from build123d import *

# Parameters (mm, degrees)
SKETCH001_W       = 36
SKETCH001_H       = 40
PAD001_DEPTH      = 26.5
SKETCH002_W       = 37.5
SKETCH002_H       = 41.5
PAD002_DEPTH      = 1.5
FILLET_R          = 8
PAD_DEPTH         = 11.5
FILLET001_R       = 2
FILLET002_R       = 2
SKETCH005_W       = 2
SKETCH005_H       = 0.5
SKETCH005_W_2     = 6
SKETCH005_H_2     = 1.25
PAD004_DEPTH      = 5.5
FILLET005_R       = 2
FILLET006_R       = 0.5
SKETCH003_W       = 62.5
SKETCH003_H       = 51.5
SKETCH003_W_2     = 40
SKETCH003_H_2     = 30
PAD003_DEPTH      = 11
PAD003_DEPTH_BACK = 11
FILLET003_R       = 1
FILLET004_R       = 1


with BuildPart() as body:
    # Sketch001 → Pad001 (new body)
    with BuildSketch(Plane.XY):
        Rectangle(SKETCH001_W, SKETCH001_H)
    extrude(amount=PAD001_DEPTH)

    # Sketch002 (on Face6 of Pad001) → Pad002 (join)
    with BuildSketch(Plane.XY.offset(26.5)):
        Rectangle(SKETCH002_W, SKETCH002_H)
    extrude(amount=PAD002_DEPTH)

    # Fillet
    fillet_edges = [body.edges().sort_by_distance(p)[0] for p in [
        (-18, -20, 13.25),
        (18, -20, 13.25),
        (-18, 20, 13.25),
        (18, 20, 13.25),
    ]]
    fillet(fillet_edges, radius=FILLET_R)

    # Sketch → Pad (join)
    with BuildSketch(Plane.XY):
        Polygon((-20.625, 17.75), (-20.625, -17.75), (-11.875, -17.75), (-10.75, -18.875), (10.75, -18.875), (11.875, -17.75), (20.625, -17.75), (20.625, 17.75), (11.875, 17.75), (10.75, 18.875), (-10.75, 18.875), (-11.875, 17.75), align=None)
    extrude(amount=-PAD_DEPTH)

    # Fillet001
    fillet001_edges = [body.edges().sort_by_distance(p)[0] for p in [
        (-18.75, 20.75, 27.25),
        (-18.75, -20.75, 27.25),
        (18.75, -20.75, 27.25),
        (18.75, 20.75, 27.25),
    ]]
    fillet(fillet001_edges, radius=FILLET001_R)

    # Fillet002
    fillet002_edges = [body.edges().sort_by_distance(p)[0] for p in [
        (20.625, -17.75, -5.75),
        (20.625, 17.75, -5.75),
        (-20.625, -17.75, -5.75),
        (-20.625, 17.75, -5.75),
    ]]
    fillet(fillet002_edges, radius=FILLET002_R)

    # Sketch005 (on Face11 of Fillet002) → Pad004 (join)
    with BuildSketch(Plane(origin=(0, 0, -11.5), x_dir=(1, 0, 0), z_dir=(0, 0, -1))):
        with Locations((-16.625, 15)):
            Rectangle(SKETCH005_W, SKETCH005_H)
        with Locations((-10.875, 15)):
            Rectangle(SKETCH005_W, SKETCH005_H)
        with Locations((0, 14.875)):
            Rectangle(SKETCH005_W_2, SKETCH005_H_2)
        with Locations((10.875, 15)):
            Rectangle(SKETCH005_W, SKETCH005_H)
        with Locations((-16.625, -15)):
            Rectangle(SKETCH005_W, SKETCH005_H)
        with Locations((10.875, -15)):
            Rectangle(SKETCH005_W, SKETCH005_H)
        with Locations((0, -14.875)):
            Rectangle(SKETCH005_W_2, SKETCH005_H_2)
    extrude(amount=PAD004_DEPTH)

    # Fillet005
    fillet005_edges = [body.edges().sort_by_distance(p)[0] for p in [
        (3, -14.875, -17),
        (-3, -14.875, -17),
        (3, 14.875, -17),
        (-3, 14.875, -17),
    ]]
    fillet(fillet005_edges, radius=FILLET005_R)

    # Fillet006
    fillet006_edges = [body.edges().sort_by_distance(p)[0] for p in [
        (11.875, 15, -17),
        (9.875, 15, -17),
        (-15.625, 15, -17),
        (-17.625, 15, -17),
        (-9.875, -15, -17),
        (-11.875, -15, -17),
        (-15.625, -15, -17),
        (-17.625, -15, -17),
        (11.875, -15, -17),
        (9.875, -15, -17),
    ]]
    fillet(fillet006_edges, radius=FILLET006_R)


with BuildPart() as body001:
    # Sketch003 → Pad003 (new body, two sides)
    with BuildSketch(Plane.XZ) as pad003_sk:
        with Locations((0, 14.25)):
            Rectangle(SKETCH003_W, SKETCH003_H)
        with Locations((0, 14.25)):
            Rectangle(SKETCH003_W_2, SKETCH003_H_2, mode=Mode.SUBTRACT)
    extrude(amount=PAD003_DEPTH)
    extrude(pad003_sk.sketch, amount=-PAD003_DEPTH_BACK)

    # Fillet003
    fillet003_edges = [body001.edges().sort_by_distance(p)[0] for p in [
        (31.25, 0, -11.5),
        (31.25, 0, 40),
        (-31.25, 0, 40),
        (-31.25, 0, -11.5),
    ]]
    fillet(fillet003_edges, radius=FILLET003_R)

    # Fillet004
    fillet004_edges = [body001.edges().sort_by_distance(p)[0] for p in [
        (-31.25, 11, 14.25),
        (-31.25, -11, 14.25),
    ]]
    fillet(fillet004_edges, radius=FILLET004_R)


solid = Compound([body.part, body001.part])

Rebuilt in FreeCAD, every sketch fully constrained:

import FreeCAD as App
import Part
import Sketcher
from FreeCAD import Vector
Q = App.Units.Quantity


def edges_at(feature, points):
    """Names of the edges that pass closest to the given points."""
    edges = feature.Shape.Edges
    near = lambda p: min(range(len(edges)), key=lambda i: edges[i].distToShape(Part.Vertex(*p))[0])
    return sorted({f"Edge{near(p) + 1}" for p in points})

doc = App.newDocument("Part")
body = doc.addObject("PartDesign::Body", "Body")

# Sketch on XY plane
sketch1 = body.newObject("Sketcher::SketchObject", "Sketch")
sketch1.AttachmentSupport = (doc.getObject("XY_Plane"), [""])
sketch1.MapMode = "FlatFace"
sketch1.addGeometry([
    Part.LineSegment(Vector(-18, 20, 0), Vector(-18, -20, 0)),
    Part.LineSegment(Vector(-18, -20, 0), Vector(18, -20, 0)),
    Part.LineSegment(Vector(18, -20, 0), Vector(18, 20, 0)),
    Part.LineSegment(Vector(18, 20, 0), Vector(-18, 20, 0)),
], False)
sketch1.addConstraint([
    Sketcher.Constraint("Coincident", 0, 2, 1, 1),
    Sketcher.Constraint("Coincident", 1, 2, 2, 1),
    Sketcher.Constraint("Coincident", 2, 2, 3, 1),
    Sketcher.Constraint("Coincident", 3, 2, 0, 1),
    Sketcher.Constraint("Vertical", 0),
    Sketcher.Constraint("Horizontal", 1),
    Sketcher.Constraint("Vertical", 2),
    Sketcher.Constraint("Horizontal", 3),
    Sketcher.Constraint("Symmetric", 0, 2, 2, 2, -1, 1),
    Sketcher.Constraint("DistanceX", 1, 1, 1, 2, Q("36 mm")),
    Sketcher.Constraint("DistanceY", 0, 2, 0, 1, Q("40 mm")),
])
pad1 = body.newObject("PartDesign::Pad", "Pad")
pad1.Profile = sketch1
pad1.Length = 26.5

# Sketch on XY plane
sketch2 = body.newObject("Sketcher::SketchObject", "Sketch001")
sketch2.AttachmentSupport = (doc.getObject("XY_Plane"), [""])
sketch2.MapMode = "FlatFace"
sketch2.AttachmentOffset = App.Placement(Vector(0, 0, 26.5), App.Rotation())
sketch2.addGeometry([
    Part.LineSegment(Vector(-19, 21, 0), Vector(-19, -21, 0)),
    Part.LineSegment(Vector(-19, -21, 0), Vector(19, -21, 0)),
    Part.LineSegment(Vector(19, -21, 0), Vector(19, 21, 0)),
    Part.LineSegment(Vector(19, 21, 0), Vector(-19, 21, 0)),
], False)
sketch2.addConstraint([
    Sketcher.Constraint("Coincident", 0, 2, 1, 1),
    Sketcher.Constraint("Coincident", 1, 2, 2, 1),
    Sketcher.Constraint("Coincident", 2, 2, 3, 1),
    Sketcher.Constraint("Coincident", 3, 2, 0, 1),
    Sketcher.Constraint("Vertical", 0),
    Sketcher.Constraint("Horizontal", 1),
    Sketcher.Constraint("Vertical", 2),
    Sketcher.Constraint("Horizontal", 3),
    Sketcher.Constraint("Symmetric", 0, 2, 2, 2, -1, 1),
    Sketcher.Constraint("DistanceX", 1, 1, 1, 2, Q("37.5 mm")),
    Sketcher.Constraint("DistanceY", 0, 2, 0, 1, Q("41.5 mm")),
])
pad2 = body.newObject("PartDesign::Pad", "Pad001")
pad2.Profile = sketch2
pad2.Length = 1.5
doc.recompute()

fillet = body.newObject("PartDesign::Fillet", "Fillet")
fillet.Base = (pad2, edges_at(pad2, [
    (-18, -20, 13.25),
    (18, -20, 13.25),
    (-18, 20, 13.25),
    (18, 20, 13.25),
]))
fillet.Radius = 8

# Sketch on XY plane
sketch3 = body.newObject("Sketcher::SketchObject", "Sketch002")
sketch3.AttachmentSupport = (doc.getObject("XY_Plane"), [""])
sketch3.MapMode = "FlatFace"
sketch3.addGeometry([
    Part.LineSegment(Vector(-20.6, 17.8, 0), Vector(-20.6, -17.8, 0)),  # 0
    Part.LineSegment(Vector(-20.6, -17.8, 0), Vector(-11.9, -17.8, 0)),  # 1
    Part.LineSegment(Vector(-11.9, -17.8, 0), Vector(-10.8, -18.9, 0)),  # 2
    Part.LineSegment(Vector(-10.8, -18.9, 0), Vector(10.8, -18.9, 0)),  # 3
    Part.LineSegment(Vector(10.8, -18.9, 0), Vector(11.9, -17.8, 0)),  # 4
    Part.LineSegment(Vector(11.9, -17.8, 0), Vector(20.6, -17.8, 0)),  # 5
    Part.LineSegment(Vector(20.6, -17.8, 0), Vector(20.6, 17.8, 0)),  # 6
    Part.LineSegment(Vector(20.6, 17.8, 0), Vector(11.9, 17.8, 0)),  # 7
    Part.LineSegment(Vector(11.9, 17.8, 0), Vector(10.8, 18.9, 0)),  # 8
    Part.LineSegment(Vector(10.8, 18.9, 0), Vector(-10.8, 18.9, 0)),  # 9
    Part.LineSegment(Vector(-10.8, 18.9, 0), Vector(-11.9, 17.8, 0)),  # 10
    Part.LineSegment(Vector(-11.9, 17.8, 0), Vector(-20.6, 17.8, 0)),  # 11
], False)
sketch3.addConstraint([
    Sketcher.Constraint("Coincident", 0, 2, 1, 1),
    Sketcher.Constraint("Coincident", 1, 2, 2, 1),
    Sketcher.Constraint("Coincident", 2, 2, 3, 1),
    Sketcher.Constraint("Coincident", 3, 2, 4, 1),
    Sketcher.Constraint("Coincident", 4, 2, 5, 1),
    Sketcher.Constraint("Coincident", 5, 2, 6, 1),
    Sketcher.Constraint("Coincident", 6, 2, 7, 1),
    Sketcher.Constraint("Coincident", 7, 2, 8, 1),
    Sketcher.Constraint("Coincident", 8, 2, 9, 1),
    Sketcher.Constraint("Coincident", 9, 2, 10, 1),
    Sketcher.Constraint("Coincident", 10, 2, 11, 1),
    Sketcher.Constraint("Coincident", 11, 2, 0, 1),
    Sketcher.Constraint("Vertical", 0),
    Sketcher.Constraint("Horizontal", 1),
    Sketcher.Constraint("Horizontal", 3),
    Sketcher.Constraint("Horizontal", 5),
    Sketcher.Constraint("Vertical", 6),
    Sketcher.Constraint("Horizontal", 7),
    Sketcher.Constraint("Horizontal", 9),
    Sketcher.Constraint("Horizontal", 11),
    Sketcher.Constraint("Symmetric", 0, 2, 6, 2, -1, 1),
    Sketcher.Constraint("Symmetric", 2, 2, 8, 2, -1, 1),
    Sketcher.Constraint("Symmetric", 4, 2, 10, 2, -1, 1),
    Sketcher.Constraint("Symmetric", 1, 2, 4, 2, -2),
    Sketcher.Constraint("Perpendicular", 2, 4),
    Sketcher.Constraint("Perpendicular", 4, 8),
    Sketcher.Constraint("Perpendicular", 8, 10),
    Sketcher.Constraint("Vertical", 3, 2, 8, 2),
    Sketcher.Constraint("DistanceX", 3, 1, 3, 2, Q("21.5 mm")),
    Sketcher.Constraint("DistanceY", 0, 2, 0, 1, Q("35.5 mm")),
    Sketcher.Constraint("DistanceX", 1, 1, 1, 2, Q("8.75 mm")),
    Sketcher.Constraint("DistanceX", 0, 2, 4, 2, Q("32.5 mm")),
])
pad3 = body.newObject("PartDesign::Pad", "Pad002")
pad3.Profile = sketch3
pad3.Length = 11.5
pad3.Reversed = True
doc.recompute()

fillet2 = body.newObject("PartDesign::Fillet", "Fillet001")
fillet2.Base = (pad3, edges_at(pad3, [
    (-18.75, 20.75, 27.25),
    (-18.75, -20.75, 27.25),
    (18.75, -20.75, 27.25),
    (18.75, 20.75, 27.25),
]))
fillet2.Radius = 2
doc.recompute()

fillet3 = body.newObject("PartDesign::Fillet", "Fillet002")
fillet3.Base = (fillet2, edges_at(fillet2, [
    (20.625, -17.75, -5.75),
    (20.625, 17.75, -5.75),
    (-20.625, -17.75, -5.75),
    (-20.625, 17.75, -5.75),
]))
fillet3.Radius = 2

# Sketch on XY plane
sketch4 = body.newObject("Sketcher::SketchObject", "Sketch003")
sketch4.AttachmentSupport = (doc.getObject("XY_Plane"), [""])
sketch4.MapMode = "FlatFace"
sketch4.AttachmentOffset = App.Placement(Vector(0, 0, -11.5), App.Rotation())
sketch4.addGeometry([
    Part.LineSegment(Vector(-17.6, -15.2, 0), Vector(-17.6, -14.8, 0)),  # 0
    Part.LineSegment(Vector(-17.6, -14.8, 0), Vector(-15.6, -14.8, 0)),  # 1
    Part.LineSegment(Vector(-15.6, -14.8, 0), Vector(-15.6, -15.2, 0)),  # 2
    Part.LineSegment(Vector(-15.6, -15.2, 0), Vector(-17.6, -15.2, 0)),  # 3
    Part.LineSegment(Vector(-11.9, -15.2, 0), Vector(-11.9, -14.8, 0)),  # 4
    Part.LineSegment(Vector(-11.9, -14.8, 0), Vector(-9.9, -14.8, 0)),  # 5
    Part.LineSegment(Vector(-9.9, -14.8, 0), Vector(-9.9, -15.2, 0)),  # 6
    Part.LineSegment(Vector(-9.9, -15.2, 0), Vector(-11.9, -15.2, 0)),  # 7
    Part.LineSegment(Vector(-3, -15.5, 0), Vector(-3, -14.2, 0)),  # 8
    Part.LineSegment(Vector(-3, -14.2, 0), Vector(3, -14.2, 0)),  # 9
    Part.LineSegment(Vector(3, -14.2, 0), Vector(3, -15.5, 0)),  # 10
    Part.LineSegment(Vector(3, -15.5, 0), Vector(-3, -15.5, 0)),  # 11
    Part.LineSegment(Vector(9.9, -15.2, 0), Vector(9.9, -14.8, 0)),  # 12
    Part.LineSegment(Vector(9.9, -14.8, 0), Vector(11.9, -14.8, 0)),  # 13
    Part.LineSegment(Vector(11.9, -14.8, 0), Vector(11.9, -15.2, 0)),  # 14
    Part.LineSegment(Vector(11.9, -15.2, 0), Vector(9.9, -15.2, 0)),  # 15
    Part.LineSegment(Vector(-17.6, 14.8, 0), Vector(-17.6, 15.2, 0)),  # 16
    Part.LineSegment(Vector(-17.6, 15.2, 0), Vector(-15.6, 15.2, 0)),  # 17
    Part.LineSegment(Vector(-15.6, 15.2, 0), Vector(-15.6, 14.8, 0)),  # 18
    Part.LineSegment(Vector(-15.6, 14.8, 0), Vector(-17.6, 14.8, 0)),  # 19
    Part.LineSegment(Vector(9.9, 14.8, 0), Vector(9.9, 15.2, 0)),  # 20
    Part.LineSegment(Vector(9.9, 15.2, 0), Vector(11.9, 15.2, 0)),  # 21
    Part.LineSegment(Vector(11.9, 15.2, 0), Vector(11.9, 14.8, 0)),  # 22
    Part.LineSegment(Vector(11.9, 14.8, 0), Vector(9.9, 14.8, 0)),  # 23
    Part.LineSegment(Vector(-3, 14.2, 0), Vector(-3, 15.5, 0)),  # 24
    Part.LineSegment(Vector(-3, 15.5, 0), Vector(3, 15.5, 0)),  # 25
    Part.LineSegment(Vector(3, 15.5, 0), Vector(3, 14.2, 0)),  # 26
    Part.LineSegment(Vector(3, 14.2, 0), Vector(-3, 14.2, 0)),  # 27
], False)
sketch4.addConstraint([
    Sketcher.Constraint("Coincident", 0, 2, 1, 1),
    Sketcher.Constraint("Coincident", 1, 2, 2, 1),
    Sketcher.Constraint("Coincident", 2, 2, 3, 1),
    Sketcher.Constraint("Coincident", 3, 2, 0, 1),
    Sketcher.Constraint("Coincident", 4, 2, 5, 1),
    Sketcher.Constraint("Coincident", 5, 2, 6, 1),
    Sketcher.Constraint("Coincident", 6, 2, 7, 1),
    Sketcher.Constraint("Coincident", 7, 2, 4, 1),
    Sketcher.Constraint("Coincident", 8, 2, 9, 1),
    Sketcher.Constraint("Coincident", 9, 2, 10, 1),
    Sketcher.Constraint("Coincident", 10, 2, 11, 1),
    Sketcher.Constraint("Coincident", 11, 2, 8, 1),
    Sketcher.Constraint("Coincident", 12, 2, 13, 1),
    Sketcher.Constraint("Coincident", 13, 2, 14, 1),
    Sketcher.Constraint("Coincident", 14, 2, 15, 1),
    Sketcher.Constraint("Coincident", 15, 2, 12, 1),
    Sketcher.Constraint("Coincident", 16, 2, 17, 1),
    Sketcher.Constraint("Coincident", 17, 2, 18, 1),
    Sketcher.Constraint("Coincident", 18, 2, 19, 1),
    Sketcher.Constraint("Coincident", 19, 2, 16, 1),
    Sketcher.Constraint("Coincident", 20, 2, 21, 1),
    Sketcher.Constraint("Coincident", 21, 2, 22, 1),
    Sketcher.Constraint("Coincident", 22, 2, 23, 1),
    Sketcher.Constraint("Coincident", 23, 2, 20, 1),
    Sketcher.Constraint("Coincident", 24, 2, 25, 1),
    Sketcher.Constraint("Coincident", 25, 2, 26, 1),
    Sketcher.Constraint("Coincident", 26, 2, 27, 1),
    Sketcher.Constraint("Coincident", 27, 2, 24, 1),
    Sketcher.Constraint("Vertical", 0),
    Sketcher.Constraint("Horizontal", 1),
    Sketcher.Constraint("Vertical", 2),
    Sketcher.Constraint("Horizontal", 3),
    Sketcher.Constraint("Vertical", 4),
    Sketcher.Constraint("Horizontal", 5),
    Sketcher.Constraint("Vertical", 6),
    Sketcher.Constraint("Horizontal", 7),
    Sketcher.Constraint("Vertical", 8),
    Sketcher.Constraint("Horizontal", 9),
    Sketcher.Constraint("Vertical", 10),
    Sketcher.Constraint("Horizontal", 11),
    Sketcher.Constraint("Vertical", 12),
    Sketcher.Constraint("Horizontal", 13),
    Sketcher.Constraint("Vertical", 14),
    Sketcher.Constraint("Horizontal", 15),
    Sketcher.Constraint("Vertical", 16),
    Sketcher.Constraint("Horizontal", 17),
    Sketcher.Constraint("Vertical", 18),
    Sketcher.Constraint("Horizontal", 19),
    Sketcher.Constraint("Vertical", 20),
    Sketcher.Constraint("Horizontal", 21),
    Sketcher.Constraint("Vertical", 22),
    Sketcher.Constraint("Horizontal", 23),
    Sketcher.Constraint("Vertical", 24),
    Sketcher.Constraint("Horizontal", 25),
    Sketcher.Constraint("Vertical", 26),
    Sketcher.Constraint("Horizontal", 27),
    Sketcher.Constraint("Symmetric", 6, 2, 20, 2, -1, 1),
    Sketcher.Constraint("Symmetric", 4, 2, 22, 2, -1, 1),
    Sketcher.Constraint("Symmetric", 10, 2, 24, 2, -1, 1),
    Sketcher.Constraint("Symmetric", 8, 2, 26, 2, -1, 1),
    Sketcher.Constraint("Symmetric", 5, 2, 12, 2, -2),
    Sketcher.Constraint("Symmetric", 7, 2, 14, 2, -2),
    Sketcher.Constraint("Symmetric", 3, 2, 16, 2, -1),
    Sketcher.Constraint("Symmetric", 1, 2, 18, 2, -1),
    Sketcher.Constraint("Horizontal", 1, 2, 4, 2),
    Sketcher.Constraint("Horizontal", 3, 2, 6, 2),
    Sketcher.Constraint("Vertical", 11, 2, 24, 2),
    Sketcher.Constraint("Equal", 3, 5),
    Sketcher.Constraint("DistanceX", 1, 1, 1, 2, Q("2 mm")),
    Sketcher.Constraint("DistanceX", 9, 1, 9, 2, Q("6 mm")),
    Sketcher.Constraint("DistanceY", 0, 1, 0, 2, Q("0.5 mm")),
    Sketcher.Constraint("DistanceY", 6, 2, 8, 2, Q("1 mm")),
    Sketcher.Constraint("DistanceY", 0, 2, 16, 2, Q("30 mm")),
    Sketcher.Constraint("DistanceY", 8, 1, 8, 2, Q("1.25 mm")),
    Sketcher.Constraint("DistanceX", 17, 2, 20, 2, Q("25.5 mm")),
    Sketcher.Constraint("DistanceX", 1, 2, 4, 2, Q("3.75 mm")),
])
pad4 = body.newObject("PartDesign::Pad", "Pad003")
pad4.Profile = sketch4
pad4.Length = 5.5
pad4.Reversed = True
doc.recompute()

fillet4 = body.newObject("PartDesign::Fillet", "Fillet003")
fillet4.Base = (pad4, edges_at(pad4, [
    (3, -14.875, -17),
    (-3, -14.875, -17),
    (3, 14.875, -17),
    (-3, 14.875, -17),
]))
fillet4.Radius = 2
doc.recompute()

fillet5 = body.newObject("PartDesign::Fillet", "Fillet004")
fillet5.Base = (fillet4, edges_at(fillet4, [
    (11.875, 15, -17),
    (9.875, 15, -17),
    (-15.625, 15, -17),
    (-17.625, 15, -17),
    (-9.875, -15, -17),
    (-11.875, -15, -17),
    (-15.625, -15, -17),
    (-17.625, -15, -17),
    (11.875, -15, -17),
    (9.875, -15, -17),
]))
fillet5.Radius = 0.5
body2 = doc.addObject("PartDesign::Body", "Body001")

# Sketch on XZ plane
sketch5 = body2.newObject("Sketcher::SketchObject", "Sketch004")
sketch5.AttachmentSupport = (doc.getObject("XZ_Plane001"), [""])
sketch5.MapMode = "FlatFace"
sketch5.addGeometry([
    Part.LineSegment(Vector(-31, 40, 0), Vector(-31, -12, 0)),  # 0
    Part.LineSegment(Vector(-31, -12, 0), Vector(31, -12, 0)),  # 1
    Part.LineSegment(Vector(31, -12, 0), Vector(31, 40, 0)),  # 2
    Part.LineSegment(Vector(31, 40, 0), Vector(-31, 40, 0)),  # 3
    Part.LineSegment(Vector(20, -1, 0), Vector(-20, -1, 0)),  # 4
    Part.LineSegment(Vector(-20, -1, 0), Vector(-20, 29, 0)),  # 5
    Part.LineSegment(Vector(-20, 29, 0), Vector(20, 29, 0)),  # 6
    Part.LineSegment(Vector(20, 29, 0), Vector(20, -1, 0)),  # 7
], False)
sketch5.addConstraint([
    Sketcher.Constraint("Coincident", 0, 2, 1, 1),
    Sketcher.Constraint("Coincident", 1, 2, 2, 1),
    Sketcher.Constraint("Coincident", 2, 2, 3, 1),
    Sketcher.Constraint("Coincident", 3, 2, 0, 1),
    Sketcher.Constraint("Coincident", 4, 2, 5, 1),
    Sketcher.Constraint("Coincident", 5, 2, 6, 1),
    Sketcher.Constraint("Coincident", 6, 2, 7, 1),
    Sketcher.Constraint("Coincident", 7, 2, 4, 1),
    Sketcher.Constraint("Vertical", 0),
    Sketcher.Constraint("Horizontal", 1),
    Sketcher.Constraint("Vertical", 2),
    Sketcher.Constraint("Horizontal", 3),
    Sketcher.Constraint("Horizontal", 4),
    Sketcher.Constraint("Vertical", 5),
    Sketcher.Constraint("Horizontal", 6),
    Sketcher.Constraint("Vertical", 7),
    Sketcher.Constraint("DistanceX", 4, 2, 4, 1, Q("40 mm")),
    Sketcher.Constraint("DistanceY", 5, 1, 5, 2, Q("30 mm")),
    Sketcher.Constraint("DistanceX", 1, 1, 1, 2, Q("62.5 mm")),
    Sketcher.Constraint("DistanceY", 0, 2, 0, 1, Q("51.5 mm")),
    Sketcher.Constraint("DistanceY", -1, 1, 2, 2, Q("40 mm")),
    Sketcher.Constraint("DistanceX", 4, 2, -1, 1, Q("20 mm")),
    Sketcher.Constraint("DistanceX", 0, 2, -1, 1, Q("31.25 mm")),
    Sketcher.Constraint("DistanceY", 4, 2, -1, 1, Q("0.75 mm")),
])
pad5 = body2.newObject("PartDesign::Pad", "Pad004")
pad5.Profile = sketch5
pad5.Type = "TwoLengths"
pad5.Length = 11
pad5.Length2 = 11
doc.recompute()

fillet6 = body2.newObject("PartDesign::Fillet", "Fillet005")
fillet6.Base = (pad5, edges_at(pad5, [
    (31.25, 0, -11.5),
    (31.25, 0, 40),
    (-31.25, 0, 40),
    (-31.25, 0, -11.5),
]))
fillet6.Radius = 1
doc.recompute()

fillet7 = body2.newObject("PartDesign::Fillet", "Fillet006")
fillet7.Base = (fillet6, edges_at(fillet6, [(-31.25, 11, 14.25), (-31.25, -11, 14.25)]))
fillet7.Radius = 1

doc.recompute()
